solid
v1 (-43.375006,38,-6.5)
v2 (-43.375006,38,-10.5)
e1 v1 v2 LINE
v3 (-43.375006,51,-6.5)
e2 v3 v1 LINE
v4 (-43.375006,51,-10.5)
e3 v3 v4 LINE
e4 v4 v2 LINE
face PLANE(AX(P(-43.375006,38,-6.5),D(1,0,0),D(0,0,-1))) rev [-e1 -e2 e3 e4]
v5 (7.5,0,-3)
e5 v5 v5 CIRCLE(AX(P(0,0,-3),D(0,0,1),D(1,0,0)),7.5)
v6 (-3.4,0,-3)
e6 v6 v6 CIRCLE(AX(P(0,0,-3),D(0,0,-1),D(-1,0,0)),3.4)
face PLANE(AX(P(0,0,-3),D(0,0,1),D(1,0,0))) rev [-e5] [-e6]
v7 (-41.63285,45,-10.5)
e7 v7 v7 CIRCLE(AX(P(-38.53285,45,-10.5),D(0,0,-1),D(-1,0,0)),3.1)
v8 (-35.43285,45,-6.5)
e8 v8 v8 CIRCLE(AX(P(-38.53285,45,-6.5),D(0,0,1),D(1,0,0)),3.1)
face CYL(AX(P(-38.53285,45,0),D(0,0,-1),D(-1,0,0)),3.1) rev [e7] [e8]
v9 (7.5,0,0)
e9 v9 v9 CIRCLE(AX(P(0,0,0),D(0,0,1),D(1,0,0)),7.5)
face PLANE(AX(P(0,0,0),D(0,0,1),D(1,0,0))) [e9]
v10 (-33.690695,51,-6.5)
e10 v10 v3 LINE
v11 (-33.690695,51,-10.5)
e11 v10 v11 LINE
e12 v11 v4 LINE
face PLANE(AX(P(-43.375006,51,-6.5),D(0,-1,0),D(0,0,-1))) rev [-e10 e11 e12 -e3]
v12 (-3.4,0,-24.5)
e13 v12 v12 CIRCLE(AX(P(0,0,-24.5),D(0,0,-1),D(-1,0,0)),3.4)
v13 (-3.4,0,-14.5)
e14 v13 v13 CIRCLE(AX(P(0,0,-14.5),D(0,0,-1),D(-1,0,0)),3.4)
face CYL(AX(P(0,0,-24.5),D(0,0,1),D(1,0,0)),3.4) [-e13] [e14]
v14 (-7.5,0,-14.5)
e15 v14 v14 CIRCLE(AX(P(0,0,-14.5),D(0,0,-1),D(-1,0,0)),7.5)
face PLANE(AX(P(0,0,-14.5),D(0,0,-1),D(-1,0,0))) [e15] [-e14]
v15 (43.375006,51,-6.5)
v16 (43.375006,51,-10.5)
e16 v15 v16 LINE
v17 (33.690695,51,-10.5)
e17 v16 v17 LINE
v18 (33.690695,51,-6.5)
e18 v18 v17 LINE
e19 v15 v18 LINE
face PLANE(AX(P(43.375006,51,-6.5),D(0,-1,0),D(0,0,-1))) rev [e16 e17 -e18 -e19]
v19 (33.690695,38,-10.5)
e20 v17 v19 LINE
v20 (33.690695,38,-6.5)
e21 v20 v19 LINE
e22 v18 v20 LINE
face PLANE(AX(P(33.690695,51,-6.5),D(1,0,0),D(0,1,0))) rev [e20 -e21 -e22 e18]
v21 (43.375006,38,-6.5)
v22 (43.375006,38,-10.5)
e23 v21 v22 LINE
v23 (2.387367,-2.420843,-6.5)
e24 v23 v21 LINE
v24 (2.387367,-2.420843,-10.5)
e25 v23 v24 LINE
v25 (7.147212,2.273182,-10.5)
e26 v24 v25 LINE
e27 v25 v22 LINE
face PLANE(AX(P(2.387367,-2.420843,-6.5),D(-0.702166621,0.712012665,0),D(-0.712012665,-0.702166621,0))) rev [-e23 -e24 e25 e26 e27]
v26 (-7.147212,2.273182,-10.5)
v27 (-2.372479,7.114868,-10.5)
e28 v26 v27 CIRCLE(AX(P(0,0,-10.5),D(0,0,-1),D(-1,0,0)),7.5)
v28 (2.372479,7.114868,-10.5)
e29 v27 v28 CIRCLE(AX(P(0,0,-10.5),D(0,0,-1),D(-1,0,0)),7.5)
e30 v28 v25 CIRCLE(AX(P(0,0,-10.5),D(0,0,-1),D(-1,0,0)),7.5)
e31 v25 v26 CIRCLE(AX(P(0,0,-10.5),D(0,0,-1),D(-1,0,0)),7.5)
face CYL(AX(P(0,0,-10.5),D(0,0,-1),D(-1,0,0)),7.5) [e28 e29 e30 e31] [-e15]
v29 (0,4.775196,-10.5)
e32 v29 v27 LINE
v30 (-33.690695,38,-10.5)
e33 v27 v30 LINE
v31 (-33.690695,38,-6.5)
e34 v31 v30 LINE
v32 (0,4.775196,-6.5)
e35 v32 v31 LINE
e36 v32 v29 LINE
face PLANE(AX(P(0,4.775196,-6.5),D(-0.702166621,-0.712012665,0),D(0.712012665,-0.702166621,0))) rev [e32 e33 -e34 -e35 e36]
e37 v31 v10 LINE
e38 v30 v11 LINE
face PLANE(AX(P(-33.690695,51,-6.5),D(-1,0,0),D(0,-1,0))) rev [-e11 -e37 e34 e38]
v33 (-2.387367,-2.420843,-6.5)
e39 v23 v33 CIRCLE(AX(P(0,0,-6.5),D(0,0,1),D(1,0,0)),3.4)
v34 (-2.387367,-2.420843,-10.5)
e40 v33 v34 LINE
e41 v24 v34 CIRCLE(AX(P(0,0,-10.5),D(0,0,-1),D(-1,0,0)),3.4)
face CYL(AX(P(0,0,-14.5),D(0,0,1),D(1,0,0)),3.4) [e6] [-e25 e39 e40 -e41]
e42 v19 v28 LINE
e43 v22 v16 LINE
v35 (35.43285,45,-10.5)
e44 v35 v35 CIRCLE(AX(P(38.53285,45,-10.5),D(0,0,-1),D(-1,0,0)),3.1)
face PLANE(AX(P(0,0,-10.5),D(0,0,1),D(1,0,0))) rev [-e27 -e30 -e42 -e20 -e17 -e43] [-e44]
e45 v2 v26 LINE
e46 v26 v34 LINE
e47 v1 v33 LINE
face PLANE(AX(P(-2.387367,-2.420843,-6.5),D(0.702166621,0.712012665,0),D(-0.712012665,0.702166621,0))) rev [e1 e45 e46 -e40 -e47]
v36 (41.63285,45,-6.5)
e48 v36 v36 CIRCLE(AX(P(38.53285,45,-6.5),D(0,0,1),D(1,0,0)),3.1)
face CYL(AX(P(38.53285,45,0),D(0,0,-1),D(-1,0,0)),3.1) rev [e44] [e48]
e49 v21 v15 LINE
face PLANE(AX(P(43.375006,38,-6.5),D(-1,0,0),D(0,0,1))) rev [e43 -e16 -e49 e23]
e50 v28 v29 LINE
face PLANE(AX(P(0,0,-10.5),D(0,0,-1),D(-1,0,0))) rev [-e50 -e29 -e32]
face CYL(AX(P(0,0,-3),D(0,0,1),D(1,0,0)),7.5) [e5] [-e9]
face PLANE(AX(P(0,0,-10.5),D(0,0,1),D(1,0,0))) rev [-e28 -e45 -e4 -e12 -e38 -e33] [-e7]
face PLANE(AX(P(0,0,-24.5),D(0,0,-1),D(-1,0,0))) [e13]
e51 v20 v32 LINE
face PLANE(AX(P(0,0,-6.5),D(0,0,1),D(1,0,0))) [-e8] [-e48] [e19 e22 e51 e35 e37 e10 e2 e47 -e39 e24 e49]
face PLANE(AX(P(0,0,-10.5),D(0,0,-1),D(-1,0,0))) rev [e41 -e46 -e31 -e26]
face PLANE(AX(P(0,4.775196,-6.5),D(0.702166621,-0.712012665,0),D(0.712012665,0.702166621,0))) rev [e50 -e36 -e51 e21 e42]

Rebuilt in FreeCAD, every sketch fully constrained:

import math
import FreeCAD as App
import Part
import Sketcher
from FreeCAD import Vector

doc = App.newDocument("Part")
body = doc.addObject("PartDesign::Body", "Body")

# Sketch on XY plane
sketch1 = body.newObject("Sketcher::SketchObject", "Sketch")
sketch1.AttachmentSupport = (doc.getObject("XY_Plane"), [""])
sketch1.MapMode = "FlatFace"
sketch1.addGeometry(Part.Circle(Vector(0, 0, 0), Vector(0, 0, 1), 7.5), False)
sketch1.addConstraint(Sketcher.Constraint("Coincident", 0, 3, -1, 1))
sketch1.addConstraint(Sketcher.Constraint("Diameter", 0, 15.0))
pad1 = body.newObject("PartDesign::Pad", "Pad")
pad1.Profile = sketch1
pad1.Length = 3
pad1.Reversed = True

# Sketch on XY plane
sketch2 = body.newObject("Sketcher::SketchObject", "Sketch001")
sketch2.AttachmentSupport = (doc.getObject("XY_Plane"), [""])
sketch2.MapMode = "FlatFace"
sketch2.AttachmentOffset = App.Placement(Vector(0, 0, -3), App.Rotation())
sketch2.addGeometry(Part.Circle(Vector(0, 0, 0), Vector(0, 0, 1), 3.4), False)
sketch2.addConstraint(Sketcher.Constraint("Coincident", 0, 3, -1, 1))
sketch2.addConstraint(Sketcher.Constraint("Diameter", 0, 6.8))
pad2 = body.newObject("PartDesign::Pad", "Pad001")
pad2.Profile = sketch2
pad2.Length = 11.5
pad2.Reversed = True

# Sketch on XY plane
sketch3 = body.newObject("Sketcher::SketchObject", "Sketch002")
sketch3.AttachmentSupport = (doc.getObject("XY_Plane"), [""])
sketch3.MapMode = "FlatFace"
sketch3.AttachmentOffset = App.Placement(Vector(0, 0, -14.5), App.Rotation())
sketch3.addGeometry(Part.Circle(Vector(0, 0, 0), Vector(0, 0, 1), 7.5), False)
sketch3.addConstraint(Sketcher.Constraint("Coincident", 0, 3, -1, 1))
sketch3.addConstraint(Sketcher.Constraint("Diameter", 0, 15.0))
pad3 = body.newObject("PartDesign::Pad", "Pad002")
pad3.Profile = sketch3
pad3.Length = 4

# Sketch on XY plane
sketch4 = body.newObject("Sketcher::SketchObject", "Sketch003")
sketch4.AttachmentSupport = (doc.getObject("XY_Plane"), [""])
sketch4.MapMode = "FlatFace"
sketch4.AttachmentOffset = App.Placement(Vector(0, 0, -14.5), App.Rotation())
sketch4.addGeometry(Part.Circle(Vector(0, 0, 0), Vector(0, 0, 1), 3.4), False)
sketch4.addConstraint(Sketcher.Constraint("Coincident", 0, 3, -1, 1))
sketch4.addConstraint(Sketcher.Constraint("Diameter", 0, 6.8))
pad4 = body.newObject("PartDesign::Pad", "Pad003")
pad4.Profile = sketch4
pad4.Length = 10
pad4.Reversed = True

# Sketch on XY plane
sketch5 = body.newObject("Sketcher::SketchObject", "Sketch004")
sketch5.AttachmentSupport = (doc.getObject("XY_Plane"), [""])
sketch5.MapMode = "FlatFace"
sketch5.AttachmentOffset = App.Placement(Vector(0, 0, -10.5), App.Rotation())
sketch5.addGeometry(Part.LineSegment(Vector(-33.690695, 38, 0), Vector(-33.690695, 51, 0)), False)
sketch5.addGeometry(Part.LineSegment(Vector(-33.690695, 51, 0), Vector(-43.375006, 51, 0)), False)
sketch5.addGeometry(Part.LineSegment(Vector(-43.375006, 51, 0), Vector(-43.375006, 38, 0)), False)
sketch5.addGeometry(Part.LineSegment(Vector(-43.375006, 38, 0), Vector(-2.387367, -2.420843, 0)), False)
sketch5.addGeometry(Part.ArcOfCircle(Part.Circle(Vector(0, 0, 0), Vector(0, 0, 1), 3.4), math.radians(-134.601092), math.radians(-45.398908)), False)
sketch5.addGeometry(Part.LineSegment(Vector(2.387367, -2.420843, 0), Vector(43.375006, 38, 0)), False)
sketch5.addGeometry(Part.LineSegment(Vector(43.375006, 38, 0), Vector(43.375006, 51, 0)), False)
sketch5.addGeometry(Part.LineSegment(Vector(43.375006, 51, 0), Vector(33.690695, 51, 0)), False)
sketch5.addGeometry(Part.LineSegment(Vector(33.690695, 51, 0), Vector(33.690695, 38, 0)), False)
sketch5.addGeometry(Part.LineSegment(Vector(33.690695, 38, 0), Vector(0, 4.775196, 0)), False)
sketch5.addGeometry(Part.LineSegment(Vector(0, 4.775196, 0), Vector(-33.690695, 38, 0)), False)
sketch5.addConstraint(Sketcher.Constraint("Coincident", 0, 2, 1, 1))
sketch5.addConstraint(Sketcher.Constraint("Coincident", 1, 2, 2, 1))
sketch5.addConstraint(Sketcher.Constraint("Coincident", 2, 2, 3, 1))
sketch5.addConstraint(Sketcher.Constraint("Tangent", 3, 2, 4, 1))
sketch5.addConstraint(Sketcher.Constraint("Tangent", 4, 2, 5, 1))
sketch5.addConstraint(Sketcher.Constraint("Coincident", 5, 2, 6, 1))
sketch5.addConstraint(Sketcher.Constraint("Coincident", 6, 2, 7, 1))
sketch5.addConstraint(Sketcher.Constraint("Coincident", 7, 2, 8, 1))
sketch5.addConstraint(Sketcher.Constraint("Coincident", 8, 2, 9, 1))
sketch5.addConstraint(Sketcher.Constraint("Coincident", 9, 2, 10, 1))
sketch5.addConstraint(Sketcher.Constraint("Coincident", 10, 2, 0, 1))
sketch5.addConstraint(Sketcher.Constraint("Vertical", 0))
sketch5.addConstraint(Sketcher.Constraint("Horizontal", 1))
sketch5.addConstraint(Sketcher.Constraint("Vertical", 2))
sketch5.addConstraint(Sketcher.Constraint("Vertical", 6))
sketch5.addConstraint(Sketcher.Constraint("Horizontal", 7))
sketch5.addConstraint(Sketcher.Constraint("Vertical", 8))
sketch5.addConstraint(Sketcher.Constraint("Coincident", 4, 3, -1, 1))
sketch5.addConstraint(Sketcher.Constraint("Symmetric", 2, 2, 5, 2, -2))
sketch5.addConstraint(Sketcher.Constraint("Symmetric", 0, 2, 7, 2, -2))
sketch5.addConstraint(Sketcher.Constraint("PointOnObject", 9, 2, -2))
sketch5.addConstraint(Sketcher.Constraint("Parallel", 5, 9))
sketch5.addConstraint(Sketcher.Constraint("Parallel", 3, 10))
sketch5.addConstraint(Sketcher.Constraint("Horizontal", 5, 2, 8, 2))
sketch5.addConstraint(Sketcher.Constraint("Radius", 4, 3.4))
sketch5.addConstraint(Sketcher.Constraint("DistanceY", 0, 1, 0, 2, 13.0))
sketch5.addConstraint(Sketcher.Constraint("DistanceY", -1, 1, 0, 2, 51.0))
sketch5.addConstraint(Sketcher.Constraint("DistanceX", 1, 2, 1, 1, 9.684311))
sketch5.addConstraint(Sketcher.Constraint("DistanceX", 0, 2, 5, 2, 77.065701))
pad5 = body.newObject("PartDesign::Pad", "Pad004")
pad5.Profile = sketch5
pad5.Length = 4

# Sketch on XY plane
sketch6 = body.newObject("Sketcher::SketchObject", "Sketch005")
sketch6.AttachmentSupport = (doc.getObject("XY_Plane"), [""])
sketch6.MapMode = "FlatFace"
sketch6.AttachmentOffset = App.Placement(Vector(0, 0, -10.5), App.Rotation())
sketch6.addGeometry(Part.Circle(Vector(38.53285, 45, 0), Vector(0, 0, 1), 3.1), False)
sketch6.addGeometry(Part.Circle(Vector(-38.53285, 45, 0), Vector(0, 0, 1), 3.1), False)
sketch6.addConstraint(Sketcher.Constraint("Equal", 0, 1))
sketch6.addConstraint(Sketcher.Constraint("Symmetric", 0, 3, 1, 3, -2))
sketch6.addConstraint(Sketcher.Constraint("Diameter", 0, 6.2))
sketch6.addConstraint(Sketcher.Constraint("DistanceY", -1, 1, 0, 3, 45.0))
sketch6.addConstraint(Sketcher.Constraint("DistanceX", 1, 3, 0, 3, 77.065701))
pocket1 = body.newObject("PartDesign::Pocket", "Pocket")
pocket1.Profile = sketch6
pocket1.Type = "ThroughAll"
pocket1.Reversed = True

doc.recompute()
